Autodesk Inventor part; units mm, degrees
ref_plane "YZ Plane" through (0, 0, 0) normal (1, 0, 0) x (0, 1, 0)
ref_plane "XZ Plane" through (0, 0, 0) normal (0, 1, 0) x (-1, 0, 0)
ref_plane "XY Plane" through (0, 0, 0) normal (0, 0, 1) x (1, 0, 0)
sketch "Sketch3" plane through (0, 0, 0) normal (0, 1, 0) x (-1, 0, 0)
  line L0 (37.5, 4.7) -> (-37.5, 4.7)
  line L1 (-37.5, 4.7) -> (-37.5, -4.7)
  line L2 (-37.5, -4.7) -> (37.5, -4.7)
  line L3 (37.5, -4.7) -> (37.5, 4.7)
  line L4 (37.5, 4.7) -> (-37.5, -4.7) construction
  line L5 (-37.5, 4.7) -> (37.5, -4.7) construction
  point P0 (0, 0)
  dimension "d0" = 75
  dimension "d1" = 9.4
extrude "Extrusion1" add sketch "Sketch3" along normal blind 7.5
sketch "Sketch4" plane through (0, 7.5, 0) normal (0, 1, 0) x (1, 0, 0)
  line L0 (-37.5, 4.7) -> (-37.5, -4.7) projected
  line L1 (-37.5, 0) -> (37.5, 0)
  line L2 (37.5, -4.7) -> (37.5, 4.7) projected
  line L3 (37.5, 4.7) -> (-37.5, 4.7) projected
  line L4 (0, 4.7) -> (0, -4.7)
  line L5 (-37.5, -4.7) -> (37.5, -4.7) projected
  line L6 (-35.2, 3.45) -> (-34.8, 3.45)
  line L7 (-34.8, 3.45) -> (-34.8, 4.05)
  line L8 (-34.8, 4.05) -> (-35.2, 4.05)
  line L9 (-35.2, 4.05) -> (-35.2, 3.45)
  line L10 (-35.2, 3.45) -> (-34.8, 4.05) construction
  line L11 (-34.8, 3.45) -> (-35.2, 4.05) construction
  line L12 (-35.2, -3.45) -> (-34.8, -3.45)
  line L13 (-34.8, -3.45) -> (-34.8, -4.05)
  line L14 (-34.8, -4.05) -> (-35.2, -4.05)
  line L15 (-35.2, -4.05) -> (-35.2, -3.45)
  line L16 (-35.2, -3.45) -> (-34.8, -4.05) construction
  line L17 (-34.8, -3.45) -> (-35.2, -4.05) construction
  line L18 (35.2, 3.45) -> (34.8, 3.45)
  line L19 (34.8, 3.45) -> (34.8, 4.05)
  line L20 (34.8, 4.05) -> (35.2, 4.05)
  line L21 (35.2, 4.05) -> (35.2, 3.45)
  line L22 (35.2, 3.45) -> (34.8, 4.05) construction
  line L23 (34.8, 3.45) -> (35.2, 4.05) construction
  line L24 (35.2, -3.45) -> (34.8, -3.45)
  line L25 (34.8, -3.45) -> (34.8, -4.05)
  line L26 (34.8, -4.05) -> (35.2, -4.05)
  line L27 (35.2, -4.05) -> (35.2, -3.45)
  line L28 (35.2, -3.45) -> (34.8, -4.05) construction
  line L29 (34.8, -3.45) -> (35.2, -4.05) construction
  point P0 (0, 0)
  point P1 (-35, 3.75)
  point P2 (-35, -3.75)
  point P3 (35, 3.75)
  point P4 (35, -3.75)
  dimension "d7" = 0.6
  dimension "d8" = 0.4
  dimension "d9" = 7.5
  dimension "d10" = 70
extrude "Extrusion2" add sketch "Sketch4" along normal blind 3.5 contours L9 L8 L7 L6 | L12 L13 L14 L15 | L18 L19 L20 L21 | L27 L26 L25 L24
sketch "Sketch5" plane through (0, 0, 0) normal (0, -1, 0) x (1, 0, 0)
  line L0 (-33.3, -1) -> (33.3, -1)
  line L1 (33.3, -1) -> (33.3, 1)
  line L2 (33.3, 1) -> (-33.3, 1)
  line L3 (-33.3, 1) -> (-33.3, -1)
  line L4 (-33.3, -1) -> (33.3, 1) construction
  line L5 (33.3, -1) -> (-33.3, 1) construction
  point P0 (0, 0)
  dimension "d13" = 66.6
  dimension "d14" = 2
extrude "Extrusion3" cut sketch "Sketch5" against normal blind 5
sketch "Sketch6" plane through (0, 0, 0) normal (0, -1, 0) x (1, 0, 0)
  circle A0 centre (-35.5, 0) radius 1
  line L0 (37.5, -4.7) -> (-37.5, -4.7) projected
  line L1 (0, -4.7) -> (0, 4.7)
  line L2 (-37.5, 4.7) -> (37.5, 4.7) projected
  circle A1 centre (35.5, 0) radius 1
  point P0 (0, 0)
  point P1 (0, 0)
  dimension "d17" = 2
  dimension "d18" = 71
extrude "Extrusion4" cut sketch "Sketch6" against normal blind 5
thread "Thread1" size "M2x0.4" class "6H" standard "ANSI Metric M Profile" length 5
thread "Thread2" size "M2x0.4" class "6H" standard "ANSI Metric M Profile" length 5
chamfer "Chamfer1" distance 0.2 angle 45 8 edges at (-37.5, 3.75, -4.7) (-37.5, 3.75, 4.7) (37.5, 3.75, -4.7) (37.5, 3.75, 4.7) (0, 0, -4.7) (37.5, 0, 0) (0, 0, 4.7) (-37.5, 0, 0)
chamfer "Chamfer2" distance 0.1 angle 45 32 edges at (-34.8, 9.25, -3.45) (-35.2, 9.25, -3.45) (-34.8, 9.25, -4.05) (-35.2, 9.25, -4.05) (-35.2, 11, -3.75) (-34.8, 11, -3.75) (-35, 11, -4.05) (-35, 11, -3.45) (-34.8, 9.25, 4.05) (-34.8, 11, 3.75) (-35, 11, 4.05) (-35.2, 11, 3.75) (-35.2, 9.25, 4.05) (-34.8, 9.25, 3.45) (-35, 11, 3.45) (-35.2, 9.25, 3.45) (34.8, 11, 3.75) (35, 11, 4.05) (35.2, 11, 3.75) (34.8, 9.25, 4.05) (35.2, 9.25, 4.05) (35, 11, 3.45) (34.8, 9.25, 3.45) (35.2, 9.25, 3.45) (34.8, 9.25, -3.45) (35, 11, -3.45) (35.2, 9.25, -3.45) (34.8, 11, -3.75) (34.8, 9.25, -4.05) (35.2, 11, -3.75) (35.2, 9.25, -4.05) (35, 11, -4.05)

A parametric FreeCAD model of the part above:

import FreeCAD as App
import Part
import Sketcher

V = App.Vector
Q = App.Units.Quantity


def edges_at(feature, points):
    """Names of the edges that pass closest to the given points."""
    edges = feature.Shape.Edges
    near = lambda p: min(range(len(edges)), key=lambda i: edges[i].distToShape(Part.Vertex(*p))[0])
    return sorted({f"Edge{near(p) + 1}" for p in points})


def add_polygon(sketch, points):
    """Adds a closed chain of lines whose ends are joined by coincident constraints."""
    first, n = sketch.GeometryCount, len(points)
    for a, b in zip(points, points[1:] + points[:1]):
        sketch.addGeometry(Part.LineSegment(App.Vector(*a, 0), App.Vector(*b, 0)), False)
    for i in range(n):
        sketch.addConstraint(Sketcher.Constraint("Coincident", first + i, 2, first + (i + 1) % n, 1))

doc = App.newDocument("Part")
body = doc.addObject("PartDesign::Body", "Body")

# Sketch on XZ plane
sketch1 = body.newObject("Sketcher::SketchObject", "Sketch")
sketch1.AttachmentSupport = (doc.getObject("XZ_Plane"), [""])
sketch1.MapMode = "FlatFace"
add_polygon(sketch1, [(-37.5, -4.7), (-37.5, 4.7), (37.5, 4.7), (37.5, -4.7)])  # lines 0-3
sketch1.addConstraint([
    Sketcher.Constraint("Vertical", 0),
    Sketcher.Constraint("Horizontal", 1),
    Sketcher.Constraint("Vertical", 2),
    Sketcher.Constraint("Horizontal", 3),
    Sketcher.Constraint("Symmetric", 0, 2, 2, 2, -1, 1),
    Sketcher.Constraint("DistanceX", 1, 1, 1, 2, Q("75 mm")),
    Sketcher.Constraint("DistanceY", 0, 1, 0, 2, Q("9.4 mm")),
])
pad1 = body.newObject("PartDesign::Pad", "Pad")
pad1.Profile = sketch1
pad1.Length = 7.5
pad1.Reversed = True

# Sketch on XZ plane
sketch2 = body.newObject("Sketcher::SketchObject", "Sketch001")
sketch2.AttachmentSupport = (doc.getObject("XZ_Plane"), [""])
sketch2.MapMode = "FlatFace"
sketch2.AttachmentOffset = App.Placement(V(0, 0, -7.5), App.Rotation())
add_polygon(sketch2, [(-35.2, -4.05), (-35.2, -3.45), (-34.8, -3.45), (-34.8, -4.05)])  # lines 0-3
add_polygon(sketch2, [(-34.8, 3.45), (-35.2, 3.45), (-35.2, 4.05), (-34.8, 4.05)])  # lines 4-7
add_polygon(sketch2, [(34.8, -3.45), (35.2, -3.45), (35.2, -4.05), (34.8, -4.05)])  # lines 8-11
add_polygon(sketch2, [(35.2, 4.05), (35.2, 3.45), (34.8, 3.45), (34.8, 4.05)])  # lines 12-15
sketch2.addConstraint([
    Sketcher.Constraint("Vertical", 0),
    Sketcher.Constraint("Horizontal", 1),
    Sketcher.Constraint("Vertical", 2),
    Sketcher.Constraint("Horizontal", 3),
    Sketcher.Constraint("Horizontal", 4),
    Sketcher.Constraint("Vertical", 5),
    Sketcher.Constraint("Horizontal", 6),
    Sketcher.Constraint("Vertical", 7),
    Sketcher.Constraint("Horizontal", 8),
    Sketcher.Constraint("Vertical", 9),
    Sketcher.Constraint("Horizontal", 10),
    Sketcher.Constraint("Vertical", 11),
    Sketcher.Constraint("Vertical", 12),
    Sketcher.Constraint("Horizontal", 13),
    Sketcher.Constraint("Vertical", 14),
    Sketcher.Constraint("Horizontal", 15),
    Sketcher.Constraint("Symmetric", 4, 2, 8, 2, -1, 1),
    Sketcher.Constraint("Symmetric", 6, 2, 10, 2, -1, 1),
    Sketcher.Constraint("Symmetric", 0, 2, 12, 2, -1, 1),
    Sketcher.Constraint("Symmetric", 2, 2, 14, 2, -1, 1),
    Sketcher.Constraint("Symmetric", 0, 2, 8, 2, -2),
    Sketcher.Constraint("Symmetric", 2, 2, 10, 2, -2),
    Sketcher.Constraint("DistanceX", 1, 1, 1, 2, Q("0.4 mm")),
    Sketcher.Constraint("DistanceY", 0, 1, 0, 2, Q("0.6 mm")),
    Sketcher.Constraint("DistanceX", 1, 2, 8, 2, Q("70 mm")),
    Sketcher.Constraint("DistanceY", 3, 2, 4, 2, Q("7.5 mm")),
])
pad2 = body.newObject("PartDesign::Pad", "Pad001")
pad2.Profile = sketch2
pad2.Length = 3.5
pad2.Reversed = True

# Sketch on XZ plane
sketch3 = body.newObject("Sketcher::SketchObject", "Sketch002")
sketch3.AttachmentSupport = (doc.getObject("XZ_Plane"), [""])
sketch3.MapMode = "FlatFace"
add_polygon(sketch3, [(-33.3, 1), (-33.3, -1), (33.3, -1), (33.3, 1)])  # lines 0-3
sketch3.addConstraint([
    Sketcher.Constraint("Vertical", 0),
    Sketcher.Constraint("Horizontal", 1),
    Sketcher.Constraint("Vertical", 2),
    Sketcher.Constraint("Horizontal", 3),
    Sketcher.Constraint("Symmetric", 0, 2, 2, 2, -1, 1),
    Sketcher.Constraint("DistanceY", 0, 2, 0, 1, Q("2 mm")),
    Sketcher.Constraint("DistanceX", 1, 1, 1, 2, Q("66.6 mm")),
])
pocket1 = body.newObject("PartDesign::Pocket", "Pocket")
pocket1.Profile = sketch3
pocket1.Length = 5

# Sketch on XZ plane
sketch4 = body.newObject("Sketcher::SketchObject", "Sketch003")
sketch4.AttachmentSupport = (doc.getObject("XZ_Plane"), [""])
sketch4.MapMode = "FlatFace"
sketch4.addGeometry([
    Part.Circle(V(-35.5, 0, 0), V(0, 0, 1), 1),
    Part.Circle(V(35.5, 0, 0), V(0, 0, 1), 1),
], False)
sketch4.addConstraint([
    Sketcher.Constraint("Equal", 0, 1),
    Sketcher.Constraint("Symmetric", 0, 3, 1, 3, -1, 1),
    Sketcher.Constraint("PointOnObject", 0, 3, -1),
    Sketcher.Constraint("Diameter", 0, Q("2 mm")),
    Sketcher.Constraint("DistanceX", 0, 3, 1, 3, Q("71 mm")),
])
pocket2 = body.newObject("PartDesign::Pocket", "Pocket001")
pocket2.Profile = sketch4
pocket2.Length = 5
doc.recompute()

chamfer = body.newObject("PartDesign::Chamfer", "Chamfer")
chamfer.Base = (pocket2, edges_at(pocket2, [
    (-37.5, 3.75, -4.7),
    (-37.5, 3.75, 4.7),
    (37.5, 3.75, -4.7),
    (37.5, 3.75, 4.7),
    (0, 0, -4.7),
    (37.5, 0, 0),
    (0, 0, 4.7),
    (-37.5, 0, 0),
]))
chamfer.Size = 0.2
doc.recompute()

chamfer2 = body.newObject("PartDesign::Chamfer", "Chamfer001")
chamfer2.Base = (chamfer, edges_at(chamfer, [
    (-34.8, 9.25, -3.45),
    (-35.2, 9.25, -3.45),
    (-34.8, 9.25, -4.05),
    (-35.2, 9.25, -4.05),
    (-35.2, 11, -3.75),
    (-34.8, 11, -3.75),
    (-35, 11, -4.05),
    (-35, 11, -3.45),
    (-34.8, 9.25, 4.05),
    (-34.8, 11, 3.75),
    (-35, 11, 4.05),
    (-35.2, 11, 3.75),
    (-35.2, 9.25, 4.05),
    (-34.8, 9.25, 3.45),
    (-35, 11, 3.45),
    (-35.2, 9.25, 3.45),
    (34.8, 11, 3.75),
    (35, 11, 4.05),
    (35.2, 11, 3.75),
    (34.8, 9.25, 4.05),
    (35.2, 9.25, 4.05),
    (35, 11, 3.45),
    (34.8, 9.25, 3.45),
    (35.2, 9.25, 3.45),
    (34.8, 9.25, -3.45),
    (35, 11, -3.45),
    (35.2, 9.25, -3.45),
    (34.8, 11, -3.75),
    (34.8, 9.25, -4.05),
    (35.2, 11, -3.75),
    (35.2, 9.25, -4.05),
    (35, 11, -4.05),
]))
chamfer2.Size = 0.1

doc.recompute()
